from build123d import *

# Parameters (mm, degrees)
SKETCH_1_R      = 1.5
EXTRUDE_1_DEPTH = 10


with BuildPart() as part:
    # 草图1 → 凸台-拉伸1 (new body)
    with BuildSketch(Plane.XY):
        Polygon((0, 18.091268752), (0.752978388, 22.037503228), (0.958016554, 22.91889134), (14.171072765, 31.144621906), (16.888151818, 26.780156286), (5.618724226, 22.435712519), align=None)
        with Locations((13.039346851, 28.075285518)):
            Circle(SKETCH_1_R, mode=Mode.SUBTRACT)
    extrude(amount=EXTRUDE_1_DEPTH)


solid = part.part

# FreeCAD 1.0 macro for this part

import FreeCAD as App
import Part
import Sketcher

V = App.Vector


def add_polygon(sketch, points):
    """Adds a closed chain of lines whose ends are joined by coincident constraints."""
    first, n = sketch.GeometryCount, len(points)
    for a, b in zip(points, points[1:] + points[:1]):
        sketch.addGeometry(Part.LineSegment(App.Vector(*a, 0), App.Vector(*b, 0)), False)
    for i in range(n):
        sketch.addConstraint(Sketcher.Constraint("Coincident", first + i, 2, first + (i + 1) % n, 1))

doc = App.newDocument("Part")
body = doc.addObject("PartDesign::Body", "Body")

sketch1 = doc.addObject("Sketcher::SketchObject", "Sketch")
body.addObject(sketch1)
sketch1.AttachmentSupport = (doc.XY_Plane, [""])
sketch1.MapMode = "FlatFace"
add_polygon(sketch1, [(0.8, 22), (0, 18.1), (5.6, 22.4), (16.9, 26.8), (14.2, 31.1), (1, 22.9)])
sketch1.addGeometry(Part.Circle(V(13, 28.1, 0), V(0, 0, 1), 1.5), False)
sketch1.addConstraint([
    Sketcher.Constraint("PointOnObject", 0, 2, -2),
    Sketcher.Constraint("Perpendicular", 3, 4),
    Sketcher.Constraint("Diameter", 6, 3.0),
    Sketcher.Constraint("Distance", 0, 4.01743),
    Sketcher.Constraint("Distance", 1, 7.102412),
    Sketcher.Constraint("Distance", 2, 12.077839),
    Sketcher.Constraint("DistanceY", -1, 1, 0, 2, 18.091269),
    Sketcher.Constraint("DistanceX", -1, 1, 2, 2, 16.888152),
    Sketcher.Constraint("DistanceY", -1, 1, 3, 2, 31.144622),
    Sketcher.Constraint("DistanceY", -1, 1, 4, 2, 22.918891),
    Sketcher.Constraint("DistanceX", -1, 1, 5, 2, 0.752978),
    Sketcher.Constraint("DistanceY", 2, 2, 6, 3, 1.295129),
    Sketcher.Constraint("DistanceX", 3, 2, 2, 2, 2.717079),
    Sketcher.Constraint("DistanceX", 1, 2, 3, 2, 8.552349),
    Sketcher.Constraint("DistanceX", 4, 2, 6, 3, 12.08133),
])
pad1 = doc.addObject("PartDesign::Pad", "Pad")
body.addObject(pad1)
pad1.Profile = sketch1
pad1.Length = 10

doc.recompute()
